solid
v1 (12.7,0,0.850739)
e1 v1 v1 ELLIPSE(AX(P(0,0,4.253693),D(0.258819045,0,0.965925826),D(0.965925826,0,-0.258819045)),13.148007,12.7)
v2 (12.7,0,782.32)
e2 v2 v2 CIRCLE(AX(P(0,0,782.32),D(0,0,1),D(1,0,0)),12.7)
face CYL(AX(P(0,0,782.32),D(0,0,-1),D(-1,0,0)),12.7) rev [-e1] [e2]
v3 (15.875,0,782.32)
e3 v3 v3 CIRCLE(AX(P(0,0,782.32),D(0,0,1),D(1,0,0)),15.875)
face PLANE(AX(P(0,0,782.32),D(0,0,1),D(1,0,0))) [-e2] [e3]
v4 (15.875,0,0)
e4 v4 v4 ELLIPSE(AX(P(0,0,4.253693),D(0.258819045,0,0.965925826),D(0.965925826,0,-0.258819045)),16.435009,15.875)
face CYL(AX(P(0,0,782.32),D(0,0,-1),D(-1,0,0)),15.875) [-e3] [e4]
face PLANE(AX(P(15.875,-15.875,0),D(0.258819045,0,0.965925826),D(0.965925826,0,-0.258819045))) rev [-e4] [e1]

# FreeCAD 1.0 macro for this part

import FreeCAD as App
import Part
import Sketcher

V = App.Vector
Q = App.Units.Quantity

doc = App.newDocument("Part")
body = doc.addObject("PartDesign::Body", "Body")

sketch1 = body.newObject("Sketcher::SketchObject", "Sketch")
sketch1.AttachmentSupport = (doc.getObject("XY_Plane"), [""])
sketch1.MapMode = "FlatFace"
sketch1.addGeometry([
    Part.Circle(V(0, 0, 0), V(0, 0, 1), 15.875),
    Part.Circle(V(0, 0, 0), V(0, 0, 1), 12.7),
], False)
sketch1.addConstraint([
    Sketcher.Constraint("Coincident", 0, 3, -1, 1),
    Sketcher.Constraint("Coincident", 1, 3, -1, 1),
    Sketcher.Constraint("Diameter", 1, Q("1 in")),
    Sketcher.Constraint("Diameter", 0, Q("1.25 in")),
])
pad1 = body.newObject("PartDesign::Pad", "Pad")
pad1.Profile = sketch1
pad1.Length = Q("30.8 in")

sketch2 = body.newObject("Sketcher::SketchObject", "Sketch001")
sketch2.AttachmentSupport = (doc.getObject("XZ_Plane"), [""])
sketch2.MapMode = "FlatFace"
sketch2.addGeometry([
    Part.LineSegment(V(15.875, 0, 0), V(-47.625, 0, 0)),
    Part.LineSegment(V(-47.625, 0, 0), V(-47.625, 17.014774, 0)),
    Part.LineSegment(V(-47.625, 17.014774, 0), V(15.875, 0, 0)),
], False)
sketch2.addConstraint([
    Sketcher.Constraint("Coincident", 0, 2, 1, 1),
    Sketcher.Constraint("Coincident", 1, 2, 2, 1),
    Sketcher.Constraint("Coincident", 2, 2, 0, 1),
    Sketcher.Constraint("Horizontal", 0),
    Sketcher.Constraint("Vertical", 1),
    Sketcher.Constraint("PointOnObject", 0, 2, -1),
    Sketcher.Constraint("DistanceX", 0, 2, 0, 1, Q("2.5 in")),
    Sketcher.Constraint("Angle", 2, Q("-15 deg")),
    Sketcher.Constraint("DistanceX", 0, 2, -1, 1, Q("1.875 in")),
])
pocket1 = body.newObject("PartDesign::Pocket", "Pocket")
pocket1.Profile = sketch2
pocket1.Type = "ThroughAll"
pocket1.Midplane = True

doc.recompute()
